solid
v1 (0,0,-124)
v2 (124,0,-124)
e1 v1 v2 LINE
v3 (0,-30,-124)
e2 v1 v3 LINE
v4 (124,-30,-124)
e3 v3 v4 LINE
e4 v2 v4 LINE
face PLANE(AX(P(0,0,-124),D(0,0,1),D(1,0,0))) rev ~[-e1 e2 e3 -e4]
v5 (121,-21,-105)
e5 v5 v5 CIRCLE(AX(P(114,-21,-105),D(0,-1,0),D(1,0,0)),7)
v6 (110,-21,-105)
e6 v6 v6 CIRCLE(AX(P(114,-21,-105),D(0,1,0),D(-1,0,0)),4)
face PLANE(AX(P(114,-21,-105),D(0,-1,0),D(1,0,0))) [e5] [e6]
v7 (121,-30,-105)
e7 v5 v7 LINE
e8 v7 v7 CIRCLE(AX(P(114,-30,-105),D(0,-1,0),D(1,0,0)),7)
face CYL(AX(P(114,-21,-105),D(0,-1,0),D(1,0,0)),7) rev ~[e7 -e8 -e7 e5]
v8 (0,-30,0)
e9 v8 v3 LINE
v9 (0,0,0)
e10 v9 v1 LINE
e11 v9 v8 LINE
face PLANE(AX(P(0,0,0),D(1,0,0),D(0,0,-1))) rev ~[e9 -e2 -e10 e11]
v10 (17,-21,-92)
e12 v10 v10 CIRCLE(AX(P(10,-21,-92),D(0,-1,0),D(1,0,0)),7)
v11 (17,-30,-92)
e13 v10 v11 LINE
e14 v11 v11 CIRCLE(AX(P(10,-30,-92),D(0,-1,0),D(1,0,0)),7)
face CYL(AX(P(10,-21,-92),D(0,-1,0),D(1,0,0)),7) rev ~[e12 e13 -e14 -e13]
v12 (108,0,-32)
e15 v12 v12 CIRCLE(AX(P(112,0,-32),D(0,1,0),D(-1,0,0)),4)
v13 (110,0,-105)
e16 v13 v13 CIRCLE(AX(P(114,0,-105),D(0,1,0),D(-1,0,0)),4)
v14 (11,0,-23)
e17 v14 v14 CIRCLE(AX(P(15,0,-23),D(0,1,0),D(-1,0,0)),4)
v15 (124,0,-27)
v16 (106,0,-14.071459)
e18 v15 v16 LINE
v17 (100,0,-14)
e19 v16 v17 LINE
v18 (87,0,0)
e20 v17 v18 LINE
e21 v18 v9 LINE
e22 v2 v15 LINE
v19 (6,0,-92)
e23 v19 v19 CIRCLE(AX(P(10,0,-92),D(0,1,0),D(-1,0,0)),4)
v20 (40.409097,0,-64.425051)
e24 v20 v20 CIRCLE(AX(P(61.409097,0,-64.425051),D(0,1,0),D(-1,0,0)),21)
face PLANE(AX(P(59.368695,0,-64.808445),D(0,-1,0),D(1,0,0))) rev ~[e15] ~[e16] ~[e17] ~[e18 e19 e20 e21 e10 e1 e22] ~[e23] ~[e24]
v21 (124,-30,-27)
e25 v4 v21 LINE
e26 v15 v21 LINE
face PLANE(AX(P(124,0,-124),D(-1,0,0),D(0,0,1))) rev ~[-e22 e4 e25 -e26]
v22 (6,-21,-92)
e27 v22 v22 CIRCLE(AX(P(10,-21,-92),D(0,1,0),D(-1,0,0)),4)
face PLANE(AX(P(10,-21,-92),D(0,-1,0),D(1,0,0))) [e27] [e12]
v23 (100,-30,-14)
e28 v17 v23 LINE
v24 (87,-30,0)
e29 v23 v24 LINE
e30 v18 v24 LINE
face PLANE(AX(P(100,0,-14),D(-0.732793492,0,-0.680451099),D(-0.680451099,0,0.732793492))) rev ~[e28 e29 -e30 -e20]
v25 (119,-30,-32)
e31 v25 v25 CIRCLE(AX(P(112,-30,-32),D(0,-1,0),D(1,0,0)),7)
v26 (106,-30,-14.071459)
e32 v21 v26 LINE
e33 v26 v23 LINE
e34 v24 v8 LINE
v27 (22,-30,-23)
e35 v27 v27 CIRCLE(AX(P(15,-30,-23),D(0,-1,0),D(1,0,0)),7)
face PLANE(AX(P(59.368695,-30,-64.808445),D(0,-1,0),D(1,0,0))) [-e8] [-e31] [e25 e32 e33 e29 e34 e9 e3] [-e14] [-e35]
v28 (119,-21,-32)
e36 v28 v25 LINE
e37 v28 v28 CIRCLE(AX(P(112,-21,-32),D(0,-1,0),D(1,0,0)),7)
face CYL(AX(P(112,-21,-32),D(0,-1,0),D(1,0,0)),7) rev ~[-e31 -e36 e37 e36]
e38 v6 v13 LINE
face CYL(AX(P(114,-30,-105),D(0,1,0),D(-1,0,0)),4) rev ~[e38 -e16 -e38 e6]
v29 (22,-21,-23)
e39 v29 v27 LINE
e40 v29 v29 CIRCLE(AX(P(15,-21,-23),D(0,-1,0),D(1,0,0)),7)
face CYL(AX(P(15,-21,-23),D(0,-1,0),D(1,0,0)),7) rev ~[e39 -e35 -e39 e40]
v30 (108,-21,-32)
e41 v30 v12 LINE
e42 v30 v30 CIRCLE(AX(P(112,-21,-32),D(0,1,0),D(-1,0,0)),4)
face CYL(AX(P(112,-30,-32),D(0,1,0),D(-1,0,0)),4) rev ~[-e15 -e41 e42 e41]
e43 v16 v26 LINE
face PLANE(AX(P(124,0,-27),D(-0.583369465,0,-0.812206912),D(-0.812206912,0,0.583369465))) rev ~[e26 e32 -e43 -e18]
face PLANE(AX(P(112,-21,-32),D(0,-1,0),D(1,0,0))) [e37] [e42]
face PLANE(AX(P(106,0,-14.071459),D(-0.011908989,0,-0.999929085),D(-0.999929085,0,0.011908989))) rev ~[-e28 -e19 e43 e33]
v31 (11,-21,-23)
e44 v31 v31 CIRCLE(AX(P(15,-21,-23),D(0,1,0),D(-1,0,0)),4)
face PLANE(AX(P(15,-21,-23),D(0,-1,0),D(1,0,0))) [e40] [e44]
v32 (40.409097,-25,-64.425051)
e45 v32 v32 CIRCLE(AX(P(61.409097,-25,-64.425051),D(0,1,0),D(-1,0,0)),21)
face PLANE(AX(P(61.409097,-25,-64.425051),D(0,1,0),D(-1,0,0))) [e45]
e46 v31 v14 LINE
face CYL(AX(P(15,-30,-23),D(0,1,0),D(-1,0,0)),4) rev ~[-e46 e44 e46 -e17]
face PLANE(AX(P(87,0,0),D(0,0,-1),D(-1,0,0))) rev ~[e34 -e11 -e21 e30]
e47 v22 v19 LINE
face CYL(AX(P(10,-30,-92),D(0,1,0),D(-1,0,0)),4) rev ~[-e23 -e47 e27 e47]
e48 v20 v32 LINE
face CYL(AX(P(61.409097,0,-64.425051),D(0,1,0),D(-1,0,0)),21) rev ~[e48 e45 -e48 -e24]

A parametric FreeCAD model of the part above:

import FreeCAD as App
import Part
import Sketcher
from FreeCAD import Vector
Q = App.Units.Quantity

doc = App.newDocument("Part")
params = doc.addObject("Spreadsheet::Sheet", "Params")
for row, (alias, value) in enumerate([
    ("sketch1_width", "87 mm"),
    ("sketch1_width2", "124 mm"),
    ("sketch1_height", "97 mm"),
    ("pad1_length", "30 mm"),
    ("sketch2_diameter", "8 mm"),
    ("hole_diameter", "8 mm"),
    ("hole_depth", "45 mm"),
    ("hole_cbore_diameter", "14 mm"),
    ("hole_cbore_depth", "9 mm"),
    ("sketch3_diameter", "42 mm"),
    ("pocket1_length", "25 mm"),
], start=1):
    params.set(f"A{row}", alias)
    params.set(f"B{row}", "=" + value)
    params.setAlias(f"B{row}", alias)

body = doc.addObject("PartDesign::Body", "Body")

# Sketch on XZ plane
sketch1 = body.newObject("Sketcher::SketchObject", "Sketch")
sketch1.AttachmentSupport = (doc.getObject("XZ_Plane"), [""])
sketch1.MapMode = "FlatFace"
sketch1.addGeometry(Part.LineSegment(Vector(87, 0, 0), Vector(0, 0, 0)), False)
sketch1.addGeometry(Part.LineSegment(Vector(0, 0, 0), Vector(0, -124, 0)), False)
sketch1.addGeometry(Part.LineSegment(Vector(0, -124, 0), Vector(124, -124, 0)), False)
sketch1.addGeometry(Part.LineSegment(Vector(124, -124, 0), Vector(124, -27, 0)), False)
sketch1.addGeometry(Part.LineSegment(Vector(124, -27, 0), Vector(106, -14.071459, 0)), False)
sketch1.addGeometry(Part.LineSegment(Vector(106, -14.071459, 0), Vector(100, -14, 0)), False)
sketch1.addGeometry(Part.LineSegment(Vector(100, -14, 0), Vector(87, 0, 0)), False)
sketch1.addConstraint(Sketcher.Constraint("Coincident", 0, 2, 1, 1))
sketch1.addConstraint(Sketcher.Constraint("Coincident", 1, 2, 2, 1))
sketch1.addConstraint(Sketcher.Constraint("Coincident", 2, 2, 3, 1))
sketch1.addConstraint(Sketcher.Constraint("Coincident", 3, 2, 4, 1))
sketch1.addConstraint(Sketcher.Constraint("Coincident", 4, 2, 5, 1))
sketch1.addConstraint(Sketcher.Constraint("Coincident", 5, 2, 6, 1))
sketch1.addConstraint(Sketcher.Constraint("Coincident", 6, 2, 0, 1))
sketch1.addConstraint(Sketcher.Constraint("Horizontal", 0))
sketch1.addConstraint(Sketcher.Constraint("Vertical", 1))
sketch1.addConstraint(Sketcher.Constraint("Horizontal", 2))
sketch1.addConstraint(Sketcher.Constraint("Vertical", 3))
sketch1.addConstraint(Sketcher.Constraint("Coincident", 0, 2, -1, 1))
sketch1.addConstraint(Sketcher.Constraint("Equal", 2, 1))
sketch1.addConstraint(Sketcher.Constraint("DistanceX", 0, 2, 0, 1, Q("87 mm")))
sketch1.addConstraint(Sketcher.Constraint("DistanceX", 2, 1, 2, 2, Q("124 mm")))
sketch1.addConstraint(Sketcher.Constraint("DistanceY", 3, 1, 3, 2, Q("97 mm")))
sketch1.addConstraint(Sketcher.Constraint("DistanceX", -1, 1, 4, 2, Q("106 mm")))
sketch1.addConstraint(Sketcher.Constraint("DistanceX", -1, 1, 5, 2, Q("100 mm")))
sketch1.addConstraint(Sketcher.Constraint("DistanceY", 5, 2, -1, 1, Q("14 mm")))
sketch1.addConstraint(Sketcher.Constraint("Distance", 4, Q("22.16184 mm")))
sketch1.setExpression("Constraints[13]", "Params.sketch1_width")
sketch1.setExpression("Constraints[14]", "Params.sketch1_width2")
sketch1.setExpression("Constraints[15]", "Params.sketch1_height")
pad1 = body.newObject("PartDesign::Pad", "Pad")
pad1.Profile = sketch1
pad1.setExpression("Length", "Params.pad1_length")

# Sketch on XZ plane
sketch2 = body.newObject("Sketcher::SketchObject", "Sketch001")
sketch2.AttachmentSupport = (doc.getObject("XZ_Plane"), [""])
sketch2.MapMode = "FlatFace"
sketch2.AttachmentOffset = App.Placement(Vector(0, 0, 30), App.Rotation())
sketch2.addGeometry(Part.Circle(Vector(15, -23, 0), Vector(0, 0, 1), 4), False)
sketch2.addGeometry(Part.Circle(Vector(10, -92, 0), Vector(0, 0, 1), 4), False)
sketch2.addGeometry(Part.Circle(Vector(112, -32, 0), Vector(0, 0, 1), 4), False)
sketch2.addGeometry(Part.Circle(Vector(114, -105, 0), Vector(0, 0, 1), 4), False)
sketch2.addConstraint(Sketcher.Constraint("Equal", 0, 1))
sketch2.addConstraint(Sketcher.Constraint("Equal", 1, 2))
sketch2.addConstraint(Sketcher.Constraint("Equal", 2, 3))
sketch2.addConstraint(Sketcher.Constraint("Diameter", 0, Q("8 mm")))
sketch2.addConstraint(Sketcher.Constraint("DistanceX", -1, 1, 0, 3, Q("15 mm")))
sketch2.addConstraint(Sketcher.Constraint("DistanceY", 0, 3, -1, 1, Q("23 mm")))
sketch2.addConstraint(Sketcher.Constraint("DistanceX", -1, 1, 1, 3, Q("10 mm")))
sketch2.addConstraint(Sketcher.Constraint("DistanceY", 1, 3, -1, 1, Q("92 mm")))
sketch2.addConstraint(Sketcher.Constraint("DistanceX", -1, 1, 2, 3, Q("112 mm")))
sketch2.addConstraint(Sketcher.Constraint("DistanceY", 2, 3, -1, 1, Q("32 mm")))
sketch2.addConstraint(Sketcher.Constraint("DistanceX", -1, 1, 3, 3, Q("114 mm")))
sketch2.addConstraint(Sketcher.Constraint("DistanceY", 3, 3, -1, 1, Q("105 mm")))
sketch2.setExpression("Constraints[3]", "Params.sketch2_diameter")
doc.recompute()
hole = body.newObject("PartDesign::Hole", "Hole")
hole.Profile = sketch2
hole.ThreadType = "None"
hole.setExpression("Diameter", "Params.hole_diameter")
hole.DepthType = "Dimension"
hole.setExpression("Depth", "Params.hole_depth")
hole.DrillPoint = "Flat"
hole.HoleCutType = "Counterbore"
hole.setExpression("HoleCutDiameter", "Params.hole_cbore_diameter")
hole.setExpression("HoleCutDepth", "Params.hole_cbore_depth")

# Sketch on XZ plane
sketch3 = body.newObject("Sketcher::SketchObject", "Sketch002")
sketch3.AttachmentSupport = (doc.getObject("XZ_Plane"), [""])
sketch3.MapMode = "FlatFace"
sketch3.addGeometry(Part.Circle(Vector(61.409097, -64.425051, 0), Vector(0, 0, 1), 21), False)
sketch3.addConstraint(Sketcher.Constraint("Diameter", 0, Q("42 mm")))
sketch3.addConstraint(Sketcher.Constraint("DistanceY", 0, 3, -1, 1, Q("64.425051 mm")))
sketch3.addConstraint(Sketcher.Constraint("DistanceX", -1, 1, 0, 3, Q("61.409097 mm")))
sketch3.setExpression("Constraints[0]", "Params.sketch3_diameter")
pocket1 = body.newObject("PartDesign::Pocket", "Pocket")
pocket1.Profile = sketch3
pocket1.setExpression("Length", "Params.pocket1_length")
pocket1.Reversed = True

doc.recompute()
